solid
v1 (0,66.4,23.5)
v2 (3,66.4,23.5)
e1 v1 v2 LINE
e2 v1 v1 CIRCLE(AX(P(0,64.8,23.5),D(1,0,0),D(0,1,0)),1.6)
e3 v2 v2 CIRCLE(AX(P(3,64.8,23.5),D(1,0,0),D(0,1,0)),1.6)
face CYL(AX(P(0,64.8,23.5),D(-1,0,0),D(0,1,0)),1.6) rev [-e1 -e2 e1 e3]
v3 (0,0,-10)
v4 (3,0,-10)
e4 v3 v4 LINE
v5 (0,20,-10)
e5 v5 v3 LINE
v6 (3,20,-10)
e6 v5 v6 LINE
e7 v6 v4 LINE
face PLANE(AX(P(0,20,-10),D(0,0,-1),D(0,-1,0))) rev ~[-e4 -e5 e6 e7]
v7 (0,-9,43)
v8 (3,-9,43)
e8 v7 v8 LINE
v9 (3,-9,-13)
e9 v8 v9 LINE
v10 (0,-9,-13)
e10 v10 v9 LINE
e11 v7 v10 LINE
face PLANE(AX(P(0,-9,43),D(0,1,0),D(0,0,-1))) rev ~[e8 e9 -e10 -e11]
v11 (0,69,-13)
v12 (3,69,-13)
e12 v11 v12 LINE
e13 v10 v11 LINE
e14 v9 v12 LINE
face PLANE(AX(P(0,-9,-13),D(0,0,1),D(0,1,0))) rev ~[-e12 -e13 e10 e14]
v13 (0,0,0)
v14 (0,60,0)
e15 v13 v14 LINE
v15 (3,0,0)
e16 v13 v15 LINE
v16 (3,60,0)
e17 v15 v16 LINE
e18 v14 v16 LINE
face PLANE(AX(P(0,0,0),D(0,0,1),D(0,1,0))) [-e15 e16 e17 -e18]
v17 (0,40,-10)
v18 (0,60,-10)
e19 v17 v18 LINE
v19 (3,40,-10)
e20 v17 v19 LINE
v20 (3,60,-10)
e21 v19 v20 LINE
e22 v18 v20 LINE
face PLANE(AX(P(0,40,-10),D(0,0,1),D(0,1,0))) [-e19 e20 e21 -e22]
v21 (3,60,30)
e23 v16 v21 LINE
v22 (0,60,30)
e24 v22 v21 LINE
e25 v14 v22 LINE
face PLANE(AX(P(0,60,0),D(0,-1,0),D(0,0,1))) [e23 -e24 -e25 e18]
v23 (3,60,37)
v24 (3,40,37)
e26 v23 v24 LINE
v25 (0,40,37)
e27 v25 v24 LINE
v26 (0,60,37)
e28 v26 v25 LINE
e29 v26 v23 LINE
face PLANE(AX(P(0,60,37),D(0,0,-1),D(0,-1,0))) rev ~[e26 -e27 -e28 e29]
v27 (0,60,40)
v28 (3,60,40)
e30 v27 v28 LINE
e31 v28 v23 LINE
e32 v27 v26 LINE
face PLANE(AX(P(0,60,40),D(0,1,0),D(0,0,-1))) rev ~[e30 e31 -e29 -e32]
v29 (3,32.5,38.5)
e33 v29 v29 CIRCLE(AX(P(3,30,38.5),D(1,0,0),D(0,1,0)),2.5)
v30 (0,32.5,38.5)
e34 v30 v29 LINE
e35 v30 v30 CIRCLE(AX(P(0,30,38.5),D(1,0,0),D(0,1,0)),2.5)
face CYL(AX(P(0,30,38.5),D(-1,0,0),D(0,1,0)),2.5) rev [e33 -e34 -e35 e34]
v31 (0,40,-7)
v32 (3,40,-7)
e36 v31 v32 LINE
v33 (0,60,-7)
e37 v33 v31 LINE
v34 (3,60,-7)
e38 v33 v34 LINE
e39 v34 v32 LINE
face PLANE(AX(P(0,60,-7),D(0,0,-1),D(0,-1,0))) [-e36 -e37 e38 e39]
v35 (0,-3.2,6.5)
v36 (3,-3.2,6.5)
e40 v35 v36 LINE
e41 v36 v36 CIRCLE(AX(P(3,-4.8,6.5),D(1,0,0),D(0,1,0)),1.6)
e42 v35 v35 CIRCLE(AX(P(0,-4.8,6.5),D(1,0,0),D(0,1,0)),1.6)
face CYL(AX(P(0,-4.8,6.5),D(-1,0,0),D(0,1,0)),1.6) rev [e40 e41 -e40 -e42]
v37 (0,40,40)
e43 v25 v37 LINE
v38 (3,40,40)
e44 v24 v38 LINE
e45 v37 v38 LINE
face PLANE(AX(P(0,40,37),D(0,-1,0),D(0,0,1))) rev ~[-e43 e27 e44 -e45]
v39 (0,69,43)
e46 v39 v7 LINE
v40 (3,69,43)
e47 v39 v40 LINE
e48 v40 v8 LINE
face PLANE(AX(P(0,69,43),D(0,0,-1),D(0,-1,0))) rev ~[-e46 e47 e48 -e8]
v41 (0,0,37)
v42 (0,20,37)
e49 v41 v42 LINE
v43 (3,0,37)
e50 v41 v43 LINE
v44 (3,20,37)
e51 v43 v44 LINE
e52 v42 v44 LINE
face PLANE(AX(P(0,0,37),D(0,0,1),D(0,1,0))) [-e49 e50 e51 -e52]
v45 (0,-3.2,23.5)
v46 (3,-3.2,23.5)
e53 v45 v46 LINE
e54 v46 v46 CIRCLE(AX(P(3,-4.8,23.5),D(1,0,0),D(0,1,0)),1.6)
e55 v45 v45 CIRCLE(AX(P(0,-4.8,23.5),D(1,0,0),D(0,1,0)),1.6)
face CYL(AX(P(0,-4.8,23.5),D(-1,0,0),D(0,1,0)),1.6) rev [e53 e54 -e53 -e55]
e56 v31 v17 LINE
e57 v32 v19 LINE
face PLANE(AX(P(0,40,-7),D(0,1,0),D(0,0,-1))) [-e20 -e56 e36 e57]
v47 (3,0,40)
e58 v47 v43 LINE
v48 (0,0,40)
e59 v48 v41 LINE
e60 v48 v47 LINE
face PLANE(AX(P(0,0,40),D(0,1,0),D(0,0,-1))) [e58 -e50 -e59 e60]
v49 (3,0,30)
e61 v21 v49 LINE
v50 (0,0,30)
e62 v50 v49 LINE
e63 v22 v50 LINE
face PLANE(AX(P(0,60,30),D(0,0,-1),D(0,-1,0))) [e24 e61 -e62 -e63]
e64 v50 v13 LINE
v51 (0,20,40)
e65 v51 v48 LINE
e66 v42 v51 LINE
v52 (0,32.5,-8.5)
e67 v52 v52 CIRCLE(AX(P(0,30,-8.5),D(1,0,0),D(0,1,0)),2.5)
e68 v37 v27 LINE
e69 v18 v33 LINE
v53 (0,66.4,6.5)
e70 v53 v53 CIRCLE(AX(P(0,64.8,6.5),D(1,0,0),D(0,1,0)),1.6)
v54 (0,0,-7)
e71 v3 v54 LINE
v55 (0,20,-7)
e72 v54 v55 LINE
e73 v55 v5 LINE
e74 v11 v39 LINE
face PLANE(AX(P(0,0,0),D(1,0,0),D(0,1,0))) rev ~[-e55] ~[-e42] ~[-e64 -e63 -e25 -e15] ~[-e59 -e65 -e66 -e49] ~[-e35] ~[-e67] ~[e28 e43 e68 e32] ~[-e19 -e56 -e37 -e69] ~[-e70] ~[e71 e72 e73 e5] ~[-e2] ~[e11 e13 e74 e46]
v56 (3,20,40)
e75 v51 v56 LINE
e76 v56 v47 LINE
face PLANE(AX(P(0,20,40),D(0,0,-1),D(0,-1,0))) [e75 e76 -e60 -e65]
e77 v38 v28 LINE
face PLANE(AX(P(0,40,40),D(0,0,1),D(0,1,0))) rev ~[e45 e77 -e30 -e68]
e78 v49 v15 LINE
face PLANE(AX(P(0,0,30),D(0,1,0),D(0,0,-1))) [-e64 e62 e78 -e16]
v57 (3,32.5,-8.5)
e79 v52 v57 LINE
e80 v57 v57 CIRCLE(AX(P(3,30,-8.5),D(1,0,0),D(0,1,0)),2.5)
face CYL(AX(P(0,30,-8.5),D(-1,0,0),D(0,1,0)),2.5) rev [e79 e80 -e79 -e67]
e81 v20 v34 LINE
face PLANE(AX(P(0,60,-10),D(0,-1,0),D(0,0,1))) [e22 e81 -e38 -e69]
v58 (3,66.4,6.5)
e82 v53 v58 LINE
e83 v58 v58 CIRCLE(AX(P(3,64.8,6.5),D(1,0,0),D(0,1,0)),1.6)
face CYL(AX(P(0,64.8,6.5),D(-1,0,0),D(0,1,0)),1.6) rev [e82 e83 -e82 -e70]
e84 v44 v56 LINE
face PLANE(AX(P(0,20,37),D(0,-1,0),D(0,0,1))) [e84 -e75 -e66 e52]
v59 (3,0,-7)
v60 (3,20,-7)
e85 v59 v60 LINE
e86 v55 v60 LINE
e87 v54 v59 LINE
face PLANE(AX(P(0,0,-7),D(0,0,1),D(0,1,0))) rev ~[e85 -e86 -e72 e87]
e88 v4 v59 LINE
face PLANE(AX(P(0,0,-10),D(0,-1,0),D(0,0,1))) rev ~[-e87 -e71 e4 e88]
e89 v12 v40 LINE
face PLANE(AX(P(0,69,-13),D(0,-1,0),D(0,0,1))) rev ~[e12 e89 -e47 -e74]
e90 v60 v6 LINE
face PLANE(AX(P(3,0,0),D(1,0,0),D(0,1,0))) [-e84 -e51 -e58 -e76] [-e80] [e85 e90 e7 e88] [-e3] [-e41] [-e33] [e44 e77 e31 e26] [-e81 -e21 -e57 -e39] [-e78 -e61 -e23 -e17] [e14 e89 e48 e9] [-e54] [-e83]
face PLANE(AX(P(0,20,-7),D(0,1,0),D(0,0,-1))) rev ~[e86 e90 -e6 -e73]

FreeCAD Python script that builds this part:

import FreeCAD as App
import Part
import Sketcher


def add_polygon(sketch, points):
    """Adds a closed chain of lines whose ends are joined by coincident constraints."""
    first, n = sketch.GeometryCount, len(points)
    for a, b in zip(points, points[1:] + points[:1]):
        sketch.addGeometry(Part.LineSegment(App.Vector(*a, 0), App.Vector(*b, 0)), False)
    for i in range(n):
        sketch.addConstraint(Sketcher.Constraint("Coincident", first + i, 2, first + (i + 1) % n, 1))

doc = App.newDocument("Part")
body = doc.addObject("PartDesign::Body", "Body")

# Sketch on YZ plane
sketch1 = body.newObject("Sketcher::SketchObject", "Sketch")
sketch1.AttachmentSupport = (doc.getObject("YZ_Plane"), [""])
sketch1.MapMode = "FlatFace"
add_polygon(sketch1, [(-9, 43), (-9, -13), (69, -13), (69, 43)])  # lines 0-3
add_polygon(sketch1, [(0, -10), (0, -7), (20, -7), (20, -10)])  # lines 4-7
sketch1.addGeometry(Part.Circle(App.Vector(-4.8, 6.5, 0), App.Vector(0, 0, 1), 1.6), False)  # 8
sketch1.addGeometry(Part.Circle(App.Vector(30, -8.5, 0), App.Vector(0, 0, 1), 2.5), False)  # 9
add_polygon(sketch1, [(40, -7), (60, -7), (60, -10), (40, -10)])  # lines 10-13
sketch1.addGeometry(Part.Circle(App.Vector(64.8, 6.5, 0), App.Vector(0, 0, 1), 1.6), False)  # 14
sketch1.addGeometry(Part.Circle(App.Vector(-4.8, 23.5, 0), App.Vector(0, 0, 1), 1.6), False)  # 15
add_polygon(sketch1, [(20, 37), (0, 37), (0, 40), (20, 40)])  # lines 16-19
add_polygon(sketch1, [(60, 0), (0, 0), (0, 30), (60, 30)])  # lines 20-23
sketch1.addGeometry(Part.Circle(App.Vector(64.8, 23.5, 0), App.Vector(0, 0, 1), 1.6), False)  # 24
sketch1.addGeometry(Part.Circle(App.Vector(30, 38.5, 0), App.Vector(0, 0, 1), 2.5), False)  # 25
add_polygon(sketch1, [(60, 40), (60, 37), (40, 37), (40, 40)])  # lines 26-29
sketch1.addConstraint([
    Sketcher.Constraint("Vertical", 0),
    Sketcher.Constraint("Horizontal", 1),
    Sketcher.Constraint("Vertical", 2),
    Sketcher.Constraint("Horizontal", 3),
    Sketcher.Constraint("Vertical", 4),
    Sketcher.Constraint("Horizontal", 5),
    Sketcher.Constraint("Vertical", 6),
    Sketcher.Constraint("Horizontal", 7),
    Sketcher.Constraint("Horizontal", 10),
    Sketcher.Constraint("Vertical", 11),
    Sketcher.Constraint("Horizontal", 12),
    Sketcher.Constraint("Vertical", 13),
    Sketcher.Constraint("Horizontal", 16),
    Sketcher.Constraint("Vertical", 17),
    Sketcher.Constraint("Horizontal", 18),
    Sketcher.Constraint("Vertical", 19),
    Sketcher.Constraint("Horizontal", 20),
    Sketcher.Constraint("Vertical", 21),
    Sketcher.Constraint("Horizontal", 22),
    Sketcher.Constraint("Vertical", 23),
    Sketcher.Constraint("Vertical", 26),
    Sketcher.Constraint("Horizontal", 27),
    Sketcher.Constraint("Vertical", 28),
    Sketcher.Constraint("Horizontal", 29),
    Sketcher.Constraint("Coincident", 20, 2, -1, 1),
    Sketcher.Constraint("Equal", 8, 14),
    Sketcher.Constraint("Equal", 14, 15),
    Sketcher.Constraint("Equal", 15, 24),
    Sketcher.Constraint("Equal", 9, 25),
    Sketcher.Constraint("PointOnObject", 4, 2, -2),
    Sketcher.Constraint("PointOnObject", 16, 2, -2),
    Sketcher.Constraint("Horizontal", 8, 3, 14, 3),
    Sketcher.Constraint("Horizontal", 15, 3, 24, 3),
    Sketcher.Constraint("Horizontal", 5, 2, 10, 2),
    Sketcher.Constraint("Horizontal", 7, 2, 11, 2),
    Sketcher.Constraint("Horizontal", 19, 2, 26, 2),
    Sketcher.Constraint("Horizontal", 18, 2, 28, 2),
    Sketcher.Constraint("Vertical", 8, 3, 15, 3),
    Sketcher.Constraint("Vertical", 14, 3, 24, 3),
    Sketcher.Constraint("Vertical", 9, 3, 25, 3),
    Sketcher.Constraint("Vertical", 6, 2, 18, 2),
    Sketcher.Constraint("Vertical", 11, 2, 22, 2),
    Sketcher.Constraint("Vertical", 23, 2, 26, 2),
    Sketcher.Constraint("Vertical", 13, 2, 27, 2),
    Sketcher.Constraint("Equal", 7, 10),
    Sketcher.Constraint("Equal", 13, 17),
    Sketcher.Constraint("Diameter", 9, 5.0),
    Sketcher.Constraint("Diameter", 8, 3.2),
    Sketcher.Constraint("DistanceX", 5, 1, 5, 2, 20.0),
    Sketcher.Constraint("DistanceX", 20, 2, 20, 1, 60.0),
    Sketcher.Constraint("DistanceY", 4, 1, 4, 2, 3.0),
    Sketcher.Constraint("DistanceY", 21, 1, 21, 2, 30.0),
    Sketcher.Constraint("DistanceX", -1, 1, 9, 3, 30.0),
    Sketcher.Constraint("DistanceX", 0, 2, -1, 1, 9.0),
    Sketcher.Constraint("DistanceY", 0, 2, -1, 1, 13.0),
    Sketcher.Constraint("DistanceY", 4, 2, -1, 1, 7.0),
    Sketcher.Constraint("DistanceX", 10, 2, 1, 2, 9.0),
    Sketcher.Constraint("DistanceY", 17, 2, 3, 2, 3.0),
    Sketcher.Constraint("DistanceY", 21, 2, 16, 2, 7.0),
    Sketcher.Constraint("DistanceX", 8, 3, -1, 1, 4.8),
    Sketcher.Constraint("DistanceY", -1, 1, 8, 3, 6.5),
    Sketcher.Constraint("DistanceY", 9, 3, -1, 1, 8.5),
    Sketcher.Constraint("DistanceY", 25, 3, 2, 2, 4.5),
    Sketcher.Constraint("DistanceX", 10, 2, 14, 3, 4.8),
    Sketcher.Constraint("DistanceY", 15, 3, 21, 2, 6.5),
])
pad1 = body.newObject("PartDesign::Pad", "Pad")
pad1.Profile = sketch1
pad1.Length = 3

doc.recompute()
